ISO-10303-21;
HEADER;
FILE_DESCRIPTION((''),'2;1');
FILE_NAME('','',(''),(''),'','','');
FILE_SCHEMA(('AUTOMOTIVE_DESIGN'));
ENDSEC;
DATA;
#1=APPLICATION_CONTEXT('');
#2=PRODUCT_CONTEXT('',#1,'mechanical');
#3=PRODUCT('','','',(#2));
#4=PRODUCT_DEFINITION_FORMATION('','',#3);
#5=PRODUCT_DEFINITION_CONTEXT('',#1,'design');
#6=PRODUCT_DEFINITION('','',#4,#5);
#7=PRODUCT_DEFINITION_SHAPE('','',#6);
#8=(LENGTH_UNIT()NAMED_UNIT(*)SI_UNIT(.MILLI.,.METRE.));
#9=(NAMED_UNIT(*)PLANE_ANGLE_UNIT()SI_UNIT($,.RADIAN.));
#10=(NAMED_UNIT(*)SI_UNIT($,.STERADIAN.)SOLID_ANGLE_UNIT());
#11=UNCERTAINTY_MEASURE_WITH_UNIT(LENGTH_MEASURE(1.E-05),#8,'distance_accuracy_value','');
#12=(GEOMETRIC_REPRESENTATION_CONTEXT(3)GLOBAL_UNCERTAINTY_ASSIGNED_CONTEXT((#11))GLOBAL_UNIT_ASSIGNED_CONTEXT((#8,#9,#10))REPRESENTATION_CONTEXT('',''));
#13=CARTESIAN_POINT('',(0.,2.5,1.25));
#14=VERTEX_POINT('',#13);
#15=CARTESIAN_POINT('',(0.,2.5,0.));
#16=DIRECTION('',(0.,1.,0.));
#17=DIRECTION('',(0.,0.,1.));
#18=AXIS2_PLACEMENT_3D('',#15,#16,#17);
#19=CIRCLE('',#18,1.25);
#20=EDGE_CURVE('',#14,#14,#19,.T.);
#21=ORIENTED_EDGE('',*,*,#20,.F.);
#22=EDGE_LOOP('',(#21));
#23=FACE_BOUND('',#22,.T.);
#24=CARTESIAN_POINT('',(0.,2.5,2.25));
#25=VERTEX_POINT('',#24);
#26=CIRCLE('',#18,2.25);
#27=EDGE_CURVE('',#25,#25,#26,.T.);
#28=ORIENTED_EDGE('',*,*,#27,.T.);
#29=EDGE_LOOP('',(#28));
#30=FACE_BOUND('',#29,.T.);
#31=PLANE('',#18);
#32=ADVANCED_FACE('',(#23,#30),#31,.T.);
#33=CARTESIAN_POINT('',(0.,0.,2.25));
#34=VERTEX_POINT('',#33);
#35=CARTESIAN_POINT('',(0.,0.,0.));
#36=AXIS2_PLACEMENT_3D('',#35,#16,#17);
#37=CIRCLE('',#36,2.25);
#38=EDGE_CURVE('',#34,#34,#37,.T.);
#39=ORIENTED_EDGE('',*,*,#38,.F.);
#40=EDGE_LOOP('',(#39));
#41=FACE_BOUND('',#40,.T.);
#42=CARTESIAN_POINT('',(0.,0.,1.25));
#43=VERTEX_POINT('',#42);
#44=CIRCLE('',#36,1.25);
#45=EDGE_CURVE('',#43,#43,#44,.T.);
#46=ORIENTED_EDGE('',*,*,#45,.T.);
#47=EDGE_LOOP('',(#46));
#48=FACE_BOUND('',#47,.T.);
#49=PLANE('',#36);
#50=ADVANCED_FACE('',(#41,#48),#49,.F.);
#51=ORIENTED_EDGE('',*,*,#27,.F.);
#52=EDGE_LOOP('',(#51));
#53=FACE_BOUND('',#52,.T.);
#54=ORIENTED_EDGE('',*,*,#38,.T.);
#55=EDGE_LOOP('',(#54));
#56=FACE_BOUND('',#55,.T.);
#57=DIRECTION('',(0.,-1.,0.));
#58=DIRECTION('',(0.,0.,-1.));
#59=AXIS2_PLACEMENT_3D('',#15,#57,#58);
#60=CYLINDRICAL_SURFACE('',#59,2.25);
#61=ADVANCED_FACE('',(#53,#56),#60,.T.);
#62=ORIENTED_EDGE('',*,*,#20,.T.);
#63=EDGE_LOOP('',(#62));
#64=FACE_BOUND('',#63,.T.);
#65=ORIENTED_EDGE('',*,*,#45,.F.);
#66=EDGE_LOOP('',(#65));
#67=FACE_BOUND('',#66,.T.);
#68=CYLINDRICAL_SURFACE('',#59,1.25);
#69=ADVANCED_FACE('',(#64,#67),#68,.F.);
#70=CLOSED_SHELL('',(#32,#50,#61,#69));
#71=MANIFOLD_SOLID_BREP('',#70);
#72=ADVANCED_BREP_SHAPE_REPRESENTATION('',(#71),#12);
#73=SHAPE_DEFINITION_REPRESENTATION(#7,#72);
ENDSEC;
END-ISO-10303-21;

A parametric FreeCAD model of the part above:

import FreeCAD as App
import Part
import Sketcher
Q = App.Units.Quantity

doc = App.newDocument("Part")
params = doc.addObject("Spreadsheet::Sheet", "Params")
for row, (alias, value) in enumerate([
    ("sketch1_diameter", "4.5 mm"),
    ("sketch1_diameter2", "2.5 mm"),
    ("pad1_length", "2.5 mm"),
], start=1):
    params.set(f"A{row}", alias)
    params.set(f"B{row}", "=" + value)
    params.setAlias(f"B{row}", alias)

body = doc.addObject("PartDesign::Body", "Body")

# Sketch on XZ plane
sketch1 = body.newObject("Sketcher::SketchObject", "Sketch")
sketch1.AttachmentSupport = (doc.getObject("XZ_Plane"), [""])
sketch1.MapMode = "FlatFace"
sketch1.addGeometry([
    Part.Circle(App.Vector(0, 0, 0), App.Vector(0, 0, 1), 2.25),
    Part.Circle(App.Vector(0, 0, 0), App.Vector(0, 0, 1), 1.25),
], False)
sketch1.addConstraint([
    Sketcher.Constraint("Coincident", 0, 3, -1, 1),
    Sketcher.Constraint("Coincident", 1, 3, -1, 1),
    Sketcher.Constraint("Diameter", 0, Q("4.5 mm")),
    Sketcher.Constraint("Diameter", 1, Q("2.5 mm")),
])
sketch1.setExpression("Constraints[2]", "Params.sketch1_diameter")
sketch1.setExpression("Constraints[3]", "Params.sketch1_diameter2")
pad1 = body.newObject("PartDesign::Pad", "Pad")
pad1.Profile = sketch1
pad1.setExpression("Length", "Params.pad1_length")
pad1.Reversed = True

doc.recompute()
